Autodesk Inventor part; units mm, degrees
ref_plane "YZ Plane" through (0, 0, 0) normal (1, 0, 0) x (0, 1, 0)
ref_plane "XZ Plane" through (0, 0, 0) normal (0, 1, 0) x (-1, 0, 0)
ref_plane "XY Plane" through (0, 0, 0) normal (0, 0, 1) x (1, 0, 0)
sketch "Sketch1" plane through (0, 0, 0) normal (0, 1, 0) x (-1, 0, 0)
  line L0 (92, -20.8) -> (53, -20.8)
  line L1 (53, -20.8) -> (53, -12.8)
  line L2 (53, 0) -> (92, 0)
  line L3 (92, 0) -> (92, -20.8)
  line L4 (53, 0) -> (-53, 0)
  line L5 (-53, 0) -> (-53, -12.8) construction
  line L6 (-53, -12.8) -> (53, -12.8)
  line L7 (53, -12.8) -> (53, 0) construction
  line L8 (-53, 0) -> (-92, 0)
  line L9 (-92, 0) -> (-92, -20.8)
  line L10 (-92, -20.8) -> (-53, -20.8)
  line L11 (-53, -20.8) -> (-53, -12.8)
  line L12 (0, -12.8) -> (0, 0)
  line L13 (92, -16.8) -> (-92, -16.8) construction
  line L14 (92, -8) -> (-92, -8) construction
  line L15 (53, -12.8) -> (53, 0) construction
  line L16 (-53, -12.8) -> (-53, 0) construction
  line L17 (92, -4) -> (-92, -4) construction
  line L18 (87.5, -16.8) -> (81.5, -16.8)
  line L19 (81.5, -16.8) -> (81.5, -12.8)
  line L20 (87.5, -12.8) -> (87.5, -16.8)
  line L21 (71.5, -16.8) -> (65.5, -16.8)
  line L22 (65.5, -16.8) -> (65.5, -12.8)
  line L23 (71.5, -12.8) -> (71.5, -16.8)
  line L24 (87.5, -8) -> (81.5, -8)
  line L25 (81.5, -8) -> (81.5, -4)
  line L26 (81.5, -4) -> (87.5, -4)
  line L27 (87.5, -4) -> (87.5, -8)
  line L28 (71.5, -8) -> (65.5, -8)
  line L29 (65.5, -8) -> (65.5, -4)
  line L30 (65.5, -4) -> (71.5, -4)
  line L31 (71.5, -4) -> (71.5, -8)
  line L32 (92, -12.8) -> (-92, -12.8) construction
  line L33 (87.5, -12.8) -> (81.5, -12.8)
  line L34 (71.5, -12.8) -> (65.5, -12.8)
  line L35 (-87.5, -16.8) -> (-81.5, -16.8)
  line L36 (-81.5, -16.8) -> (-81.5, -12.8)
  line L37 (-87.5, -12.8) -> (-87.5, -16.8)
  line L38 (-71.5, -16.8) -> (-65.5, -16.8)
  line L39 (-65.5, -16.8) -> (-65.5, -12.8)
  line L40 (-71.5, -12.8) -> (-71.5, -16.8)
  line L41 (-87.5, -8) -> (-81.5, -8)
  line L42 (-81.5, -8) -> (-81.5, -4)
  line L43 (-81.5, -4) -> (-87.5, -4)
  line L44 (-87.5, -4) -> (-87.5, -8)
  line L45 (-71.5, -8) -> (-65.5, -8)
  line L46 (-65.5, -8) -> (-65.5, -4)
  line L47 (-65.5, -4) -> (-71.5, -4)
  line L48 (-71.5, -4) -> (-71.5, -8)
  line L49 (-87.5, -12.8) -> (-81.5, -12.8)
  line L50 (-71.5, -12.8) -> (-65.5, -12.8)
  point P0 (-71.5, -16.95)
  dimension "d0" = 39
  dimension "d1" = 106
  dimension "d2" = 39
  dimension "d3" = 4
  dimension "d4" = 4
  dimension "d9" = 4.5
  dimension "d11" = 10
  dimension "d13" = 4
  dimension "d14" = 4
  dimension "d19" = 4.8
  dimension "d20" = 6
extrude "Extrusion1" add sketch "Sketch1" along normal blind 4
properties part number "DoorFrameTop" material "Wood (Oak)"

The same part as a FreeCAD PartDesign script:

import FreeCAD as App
import Part
import Sketcher

V = App.Vector

doc = App.newDocument("Part")
body = doc.addObject("PartDesign::Body", "Body")

sketch1 = doc.addObject("Sketcher::SketchObject", "Sketch")
body.addObject(sketch1)
sketch1.AttachmentSupport = (doc.XZ_Plane, [""])
sketch1.MapMode = "FlatFace"
sketch1.addGeometry([
    Part.LineSegment(V(-53, -20.8, 0), V(-92, -20.8, 0)),
    Part.LineSegment(V(-92, -20.8, 0), V(-92, 0, 0)),
    Part.LineSegment(V(-92, 0, 0), V(92, 0, 0)),
    Part.LineSegment(V(92, 0, 0), V(92, -20.8, 0)),
    Part.LineSegment(V(92, -20.8, 0), V(53, -20.8, 0)),
    Part.LineSegment(V(53, -20.8, 0), V(53, -12.8, 0)),
    Part.LineSegment(V(53, -12.8, 0), V(-53, -12.8, 0)),
    Part.LineSegment(V(-53, -12.8, 0), V(-53, -20.8, 0)),
    Part.LineSegment(V(-71.5, -12.8, 0), V(-71.5, -16.8, 0)),
    Part.LineSegment(V(-71.5, -16.8, 0), V(-65.5, -16.8, 0)),
    Part.LineSegment(V(-65.5, -16.8, 0), V(-65.5, -12.8, 0)),
    Part.LineSegment(V(-65.5, -12.8, 0), V(-71.5, -12.8, 0)),
    Part.LineSegment(V(-87.5, -12.8, 0), V(-87.5, -16.8, 0)),
    Part.LineSegment(V(-87.5, -16.8, 0), V(-81.5, -16.8, 0)),
    Part.LineSegment(V(-81.5, -16.8, 0), V(-81.5, -12.8, 0)),
    Part.LineSegment(V(-81.5, -12.8, 0), V(-87.5, -12.8, 0)),
    Part.LineSegment(V(-71.5, -4, 0), V(-71.5, -8, 0)),
    Part.LineSegment(V(-71.5, -8, 0), V(-65.5, -8, 0)),
    Part.LineSegment(V(-65.5, -8, 0), V(-65.5, -4, 0)),
    Part.LineSegment(V(-65.5, -4, 0), V(-71.5, -4, 0)),
    Part.LineSegment(V(-87.5, -4, 0), V(-87.5, -8, 0)),
    Part.LineSegment(V(-87.5, -8, 0), V(-81.5, -8, 0)),
    Part.LineSegment(V(-81.5, -8, 0), V(-81.5, -4, 0)),
    Part.LineSegment(V(-81.5, -4, 0), V(-87.5, -4, 0)),
    Part.LineSegment(V(71.5, -8, 0), V(71.5, -4, 0)),
    Part.LineSegment(V(71.5, -4, 0), V(65.5, -4, 0)),
    Part.LineSegment(V(65.5, -4, 0), V(65.5, -8, 0)),
    Part.LineSegment(V(65.5, -8, 0), V(71.5, -8, 0)),
    Part.LineSegment(V(81.5, -16.8, 0), V(87.5, -16.8, 0)),
    Part.LineSegment(V(87.5, -16.8, 0), V(87.5, -12.8, 0)),
    Part.LineSegment(V(87.5, -12.8, 0), V(81.5, -12.8, 0)),
    Part.LineSegment(V(81.5, -12.8, 0), V(81.5, -16.8, 0)),
    Part.LineSegment(V(65.5, -16.8, 0), V(71.5, -16.8, 0)),
    Part.LineSegment(V(71.5, -16.8, 0), V(71.5, -12.8, 0)),
    Part.LineSegment(V(71.5, -12.8, 0), V(65.5, -12.8, 0)),
    Part.LineSegment(V(65.5, -12.8, 0), V(65.5, -16.8, 0)),
    Part.LineSegment(V(81.5, -8, 0), V(87.5, -8, 0)),
    Part.LineSegment(V(87.5, -8, 0), V(87.5, -4, 0)),
    Part.LineSegment(V(87.5, -4, 0), V(81.5, -4, 0)),
    Part.LineSegment(V(81.5, -4, 0), V(81.5, -8, 0)),
], False)
sketch1.addConstraint([
    Sketcher.Constraint("Coincident", 0, 2, 1, 1),
    Sketcher.Constraint("Coincident", 1, 2, 2, 1),
    Sketcher.Constraint("Coincident", 2, 2, 3, 1),
    Sketcher.Constraint("Coincident", 3, 2, 4, 1),
    Sketcher.Constraint("Coincident", 4, 2, 5, 1),
    Sketcher.Constraint("Coincident", 5, 2, 6, 1),
    Sketcher.Constraint("Coincident", 6, 2, 7, 1),
    Sketcher.Constraint("Coincident", 7, 2, 0, 1),
    Sketcher.Constraint("Coincident", 8, 2, 9, 1),
    Sketcher.Constraint("Coincident", 9, 2, 10, 1),
    Sketcher.Constraint("Coincident", 10, 2, 11, 1),
    Sketcher.Constraint("Coincident", 11, 2, 8, 1),
    Sketcher.Constraint("Coincident", 12, 2, 13, 1),
    Sketcher.Constraint("Coincident", 13, 2, 14, 1),
    Sketcher.Constraint("Coincident", 14, 2, 15, 1),
    Sketcher.Constraint("Coincident", 15, 2, 12, 1),
    Sketcher.Constraint("Coincident", 16, 2, 17, 1),
    Sketcher.Constraint("Coincident", 17, 2, 18, 1),
    Sketcher.Constraint("Coincident", 18, 2, 19, 1),
    Sketcher.Constraint("Coincident", 19, 2, 16, 1),
    Sketcher.Constraint("Coincident", 20, 2, 21, 1),
    Sketcher.Constraint("Coincident", 21, 2, 22, 1),
    Sketcher.Constraint("Coincident", 22, 2, 23, 1),
    Sketcher.Constraint("Coincident", 23, 2, 20, 1),
    Sketcher.Constraint("Coincident", 24, 2, 25, 1),
    Sketcher.Constraint("Coincident", 25, 2, 26, 1),
    Sketcher.Constraint("Coincident", 26, 2, 27, 1),
    Sketcher.Constraint("Coincident", 27, 2, 24, 1),
    Sketcher.Constraint("Coincident", 28, 2, 29, 1),
    Sketcher.Constraint("Coincident", 29, 2, 30, 1),
    Sketcher.Constraint("Coincident", 30, 2, 31, 1),
    Sketcher.Constraint("Coincident", 31, 2, 28, 1),
    Sketcher.Constraint("Coincident", 32, 2, 33, 1),
    Sketcher.Constraint("Coincident", 33, 2, 34, 1),
    Sketcher.Constraint("Coincident", 34, 2, 35, 1),
    Sketcher.Constraint("Coincident", 35, 2, 32, 1),
    Sketcher.Constraint("Coincident", 36, 2, 37, 1),
    Sketcher.Constraint("Coincident", 37, 2, 38, 1),
    Sketcher.Constraint("Coincident", 38, 2, 39, 1),
    Sketcher.Constraint("Coincident", 39, 2, 36, 1),
    Sketcher.Constraint("Horizontal", 0),
    Sketcher.Constraint("Vertical", 1),
    Sketcher.Constraint("Horizontal", 2),
    Sketcher.Constraint("Vertical", 3),
    Sketcher.Constraint("Horizontal", 4),
    Sketcher.Constraint("Vertical", 5),
    Sketcher.Constraint("Horizontal", 6),
    Sketcher.Constraint("Vertical", 7),
    Sketcher.Constraint("Vertical", 8),
    Sketcher.Constraint("Horizontal", 9),
    Sketcher.Constraint("Vertical", 10),
    Sketcher.Constraint("Horizontal", 11),
    Sketcher.Constraint("Vertical", 12),
    Sketcher.Constraint("Horizontal", 13),
    Sketcher.Constraint("Vertical", 14),
    Sketcher.Constraint("Horizontal", 15),
    Sketcher.Constraint("Vertical", 16),
    Sketcher.Constraint("Horizontal", 17),
    Sketcher.Constraint("Vertical", 18),
    Sketcher.Constraint("Horizontal", 19),
    Sketcher.Constraint("Vertical", 20),
    Sketcher.Constraint("Horizontal", 21),
    Sketcher.Constraint("Vertical", 22),
    Sketcher.Constraint("Horizontal", 23),
    Sketcher.Constraint("Vertical", 24),
    Sketcher.Constraint("Horizontal", 25),
    Sketcher.Constraint("Vertical", 26),
    Sketcher.Constraint("Horizontal", 27),
    Sketcher.Constraint("Horizontal", 28),
    Sketcher.Constraint("Vertical", 29),
    Sketcher.Constraint("Horizontal", 30),
    Sketcher.Constraint("Vertical", 31),
    Sketcher.Constraint("Horizontal", 32),
    Sketcher.Constraint("Vertical", 33),
    Sketcher.Constraint("Horizontal", 34),
    Sketcher.Constraint("Vertical", 35),
    Sketcher.Constraint("Horizontal", 36),
    Sketcher.Constraint("Vertical", 37),
    Sketcher.Constraint("Horizontal", 38),
    Sketcher.Constraint("Vertical", 39),
    Sketcher.Constraint("Symmetric", 1, 2, 2, 2, -1, 1),
    Sketcher.Constraint("Symmetric", 4, 2, 7, 2, -2),
    Sketcher.Constraint("Symmetric", 19, 2, 24, 2, -2),
    Sketcher.Constraint("Symmetric", 17, 2, 26, 2, -2),
    Sketcher.Constraint("Symmetric", 12, 2, 28, 2, -2),
    Sketcher.Constraint("Symmetric", 14, 2, 30, 2, -2),
    Sketcher.Constraint("Symmetric", 8, 2, 32, 2, -2),
    Sketcher.Constraint("Symmetric", 10, 2, 34, 2, -2),
    Sketcher.Constraint("Symmetric", 20, 2, 36, 2, -2),
    Sketcher.Constraint("Symmetric", 22, 2, 38, 2, -2),
    Sketcher.Constraint("Horizontal", 6, 2, 10, 2),
    Sketcher.Constraint("Horizontal", 9, 2, 12, 2),
    Sketcher.Constraint("Horizontal", 11, 2, 14, 2),
    Sketcher.Constraint("Horizontal", 17, 2, 20, 2),
    Sketcher.Constraint("Horizontal", 19, 2, 22, 2),
    Sketcher.Constraint("Vertical", 11, 2, 16, 2),
    Sketcher.Constraint("Vertical", 10, 2, 17, 2),
    Sketcher.Constraint("Vertical", 15, 2, 20, 2),
    Sketcher.Constraint("Vertical", 14, 2, 21, 2),
    Sketcher.Constraint("Equal", 11, 13),
    Sketcher.Constraint("Equal", 14, 16),
    Sketcher.Constraint("DistanceX", 0, 2, 0, 1, 39.0),
    Sketcher.Constraint("DistanceX", 6, 2, 6, 1, 106.0),
    Sketcher.Constraint("DistanceX", 9, 1, 9, 2, 6.0),
    Sketcher.Constraint("DistanceY", 8, 2, 8, 1, 4.0),
    Sketcher.Constraint("DistanceY", 18, 2, -1, 1, 4.0),
    Sketcher.Constraint("DistanceY", 7, 2, 8, 2, 4.0),
    Sketcher.Constraint("DistanceX", 13, 2, 8, 2, 10.0),
    Sketcher.Constraint("DistanceX", 0, 2, 12, 2, 4.5),
    Sketcher.Constraint("DistanceY", 11, 2, 16, 2, 4.8),
])
pad1 = doc.addObject("PartDesign::Pad", "Pad")
body.addObject(pad1)
pad1.Profile = sketch1
pad1.Length = 4
pad1.Reversed = True

doc.recompute()
